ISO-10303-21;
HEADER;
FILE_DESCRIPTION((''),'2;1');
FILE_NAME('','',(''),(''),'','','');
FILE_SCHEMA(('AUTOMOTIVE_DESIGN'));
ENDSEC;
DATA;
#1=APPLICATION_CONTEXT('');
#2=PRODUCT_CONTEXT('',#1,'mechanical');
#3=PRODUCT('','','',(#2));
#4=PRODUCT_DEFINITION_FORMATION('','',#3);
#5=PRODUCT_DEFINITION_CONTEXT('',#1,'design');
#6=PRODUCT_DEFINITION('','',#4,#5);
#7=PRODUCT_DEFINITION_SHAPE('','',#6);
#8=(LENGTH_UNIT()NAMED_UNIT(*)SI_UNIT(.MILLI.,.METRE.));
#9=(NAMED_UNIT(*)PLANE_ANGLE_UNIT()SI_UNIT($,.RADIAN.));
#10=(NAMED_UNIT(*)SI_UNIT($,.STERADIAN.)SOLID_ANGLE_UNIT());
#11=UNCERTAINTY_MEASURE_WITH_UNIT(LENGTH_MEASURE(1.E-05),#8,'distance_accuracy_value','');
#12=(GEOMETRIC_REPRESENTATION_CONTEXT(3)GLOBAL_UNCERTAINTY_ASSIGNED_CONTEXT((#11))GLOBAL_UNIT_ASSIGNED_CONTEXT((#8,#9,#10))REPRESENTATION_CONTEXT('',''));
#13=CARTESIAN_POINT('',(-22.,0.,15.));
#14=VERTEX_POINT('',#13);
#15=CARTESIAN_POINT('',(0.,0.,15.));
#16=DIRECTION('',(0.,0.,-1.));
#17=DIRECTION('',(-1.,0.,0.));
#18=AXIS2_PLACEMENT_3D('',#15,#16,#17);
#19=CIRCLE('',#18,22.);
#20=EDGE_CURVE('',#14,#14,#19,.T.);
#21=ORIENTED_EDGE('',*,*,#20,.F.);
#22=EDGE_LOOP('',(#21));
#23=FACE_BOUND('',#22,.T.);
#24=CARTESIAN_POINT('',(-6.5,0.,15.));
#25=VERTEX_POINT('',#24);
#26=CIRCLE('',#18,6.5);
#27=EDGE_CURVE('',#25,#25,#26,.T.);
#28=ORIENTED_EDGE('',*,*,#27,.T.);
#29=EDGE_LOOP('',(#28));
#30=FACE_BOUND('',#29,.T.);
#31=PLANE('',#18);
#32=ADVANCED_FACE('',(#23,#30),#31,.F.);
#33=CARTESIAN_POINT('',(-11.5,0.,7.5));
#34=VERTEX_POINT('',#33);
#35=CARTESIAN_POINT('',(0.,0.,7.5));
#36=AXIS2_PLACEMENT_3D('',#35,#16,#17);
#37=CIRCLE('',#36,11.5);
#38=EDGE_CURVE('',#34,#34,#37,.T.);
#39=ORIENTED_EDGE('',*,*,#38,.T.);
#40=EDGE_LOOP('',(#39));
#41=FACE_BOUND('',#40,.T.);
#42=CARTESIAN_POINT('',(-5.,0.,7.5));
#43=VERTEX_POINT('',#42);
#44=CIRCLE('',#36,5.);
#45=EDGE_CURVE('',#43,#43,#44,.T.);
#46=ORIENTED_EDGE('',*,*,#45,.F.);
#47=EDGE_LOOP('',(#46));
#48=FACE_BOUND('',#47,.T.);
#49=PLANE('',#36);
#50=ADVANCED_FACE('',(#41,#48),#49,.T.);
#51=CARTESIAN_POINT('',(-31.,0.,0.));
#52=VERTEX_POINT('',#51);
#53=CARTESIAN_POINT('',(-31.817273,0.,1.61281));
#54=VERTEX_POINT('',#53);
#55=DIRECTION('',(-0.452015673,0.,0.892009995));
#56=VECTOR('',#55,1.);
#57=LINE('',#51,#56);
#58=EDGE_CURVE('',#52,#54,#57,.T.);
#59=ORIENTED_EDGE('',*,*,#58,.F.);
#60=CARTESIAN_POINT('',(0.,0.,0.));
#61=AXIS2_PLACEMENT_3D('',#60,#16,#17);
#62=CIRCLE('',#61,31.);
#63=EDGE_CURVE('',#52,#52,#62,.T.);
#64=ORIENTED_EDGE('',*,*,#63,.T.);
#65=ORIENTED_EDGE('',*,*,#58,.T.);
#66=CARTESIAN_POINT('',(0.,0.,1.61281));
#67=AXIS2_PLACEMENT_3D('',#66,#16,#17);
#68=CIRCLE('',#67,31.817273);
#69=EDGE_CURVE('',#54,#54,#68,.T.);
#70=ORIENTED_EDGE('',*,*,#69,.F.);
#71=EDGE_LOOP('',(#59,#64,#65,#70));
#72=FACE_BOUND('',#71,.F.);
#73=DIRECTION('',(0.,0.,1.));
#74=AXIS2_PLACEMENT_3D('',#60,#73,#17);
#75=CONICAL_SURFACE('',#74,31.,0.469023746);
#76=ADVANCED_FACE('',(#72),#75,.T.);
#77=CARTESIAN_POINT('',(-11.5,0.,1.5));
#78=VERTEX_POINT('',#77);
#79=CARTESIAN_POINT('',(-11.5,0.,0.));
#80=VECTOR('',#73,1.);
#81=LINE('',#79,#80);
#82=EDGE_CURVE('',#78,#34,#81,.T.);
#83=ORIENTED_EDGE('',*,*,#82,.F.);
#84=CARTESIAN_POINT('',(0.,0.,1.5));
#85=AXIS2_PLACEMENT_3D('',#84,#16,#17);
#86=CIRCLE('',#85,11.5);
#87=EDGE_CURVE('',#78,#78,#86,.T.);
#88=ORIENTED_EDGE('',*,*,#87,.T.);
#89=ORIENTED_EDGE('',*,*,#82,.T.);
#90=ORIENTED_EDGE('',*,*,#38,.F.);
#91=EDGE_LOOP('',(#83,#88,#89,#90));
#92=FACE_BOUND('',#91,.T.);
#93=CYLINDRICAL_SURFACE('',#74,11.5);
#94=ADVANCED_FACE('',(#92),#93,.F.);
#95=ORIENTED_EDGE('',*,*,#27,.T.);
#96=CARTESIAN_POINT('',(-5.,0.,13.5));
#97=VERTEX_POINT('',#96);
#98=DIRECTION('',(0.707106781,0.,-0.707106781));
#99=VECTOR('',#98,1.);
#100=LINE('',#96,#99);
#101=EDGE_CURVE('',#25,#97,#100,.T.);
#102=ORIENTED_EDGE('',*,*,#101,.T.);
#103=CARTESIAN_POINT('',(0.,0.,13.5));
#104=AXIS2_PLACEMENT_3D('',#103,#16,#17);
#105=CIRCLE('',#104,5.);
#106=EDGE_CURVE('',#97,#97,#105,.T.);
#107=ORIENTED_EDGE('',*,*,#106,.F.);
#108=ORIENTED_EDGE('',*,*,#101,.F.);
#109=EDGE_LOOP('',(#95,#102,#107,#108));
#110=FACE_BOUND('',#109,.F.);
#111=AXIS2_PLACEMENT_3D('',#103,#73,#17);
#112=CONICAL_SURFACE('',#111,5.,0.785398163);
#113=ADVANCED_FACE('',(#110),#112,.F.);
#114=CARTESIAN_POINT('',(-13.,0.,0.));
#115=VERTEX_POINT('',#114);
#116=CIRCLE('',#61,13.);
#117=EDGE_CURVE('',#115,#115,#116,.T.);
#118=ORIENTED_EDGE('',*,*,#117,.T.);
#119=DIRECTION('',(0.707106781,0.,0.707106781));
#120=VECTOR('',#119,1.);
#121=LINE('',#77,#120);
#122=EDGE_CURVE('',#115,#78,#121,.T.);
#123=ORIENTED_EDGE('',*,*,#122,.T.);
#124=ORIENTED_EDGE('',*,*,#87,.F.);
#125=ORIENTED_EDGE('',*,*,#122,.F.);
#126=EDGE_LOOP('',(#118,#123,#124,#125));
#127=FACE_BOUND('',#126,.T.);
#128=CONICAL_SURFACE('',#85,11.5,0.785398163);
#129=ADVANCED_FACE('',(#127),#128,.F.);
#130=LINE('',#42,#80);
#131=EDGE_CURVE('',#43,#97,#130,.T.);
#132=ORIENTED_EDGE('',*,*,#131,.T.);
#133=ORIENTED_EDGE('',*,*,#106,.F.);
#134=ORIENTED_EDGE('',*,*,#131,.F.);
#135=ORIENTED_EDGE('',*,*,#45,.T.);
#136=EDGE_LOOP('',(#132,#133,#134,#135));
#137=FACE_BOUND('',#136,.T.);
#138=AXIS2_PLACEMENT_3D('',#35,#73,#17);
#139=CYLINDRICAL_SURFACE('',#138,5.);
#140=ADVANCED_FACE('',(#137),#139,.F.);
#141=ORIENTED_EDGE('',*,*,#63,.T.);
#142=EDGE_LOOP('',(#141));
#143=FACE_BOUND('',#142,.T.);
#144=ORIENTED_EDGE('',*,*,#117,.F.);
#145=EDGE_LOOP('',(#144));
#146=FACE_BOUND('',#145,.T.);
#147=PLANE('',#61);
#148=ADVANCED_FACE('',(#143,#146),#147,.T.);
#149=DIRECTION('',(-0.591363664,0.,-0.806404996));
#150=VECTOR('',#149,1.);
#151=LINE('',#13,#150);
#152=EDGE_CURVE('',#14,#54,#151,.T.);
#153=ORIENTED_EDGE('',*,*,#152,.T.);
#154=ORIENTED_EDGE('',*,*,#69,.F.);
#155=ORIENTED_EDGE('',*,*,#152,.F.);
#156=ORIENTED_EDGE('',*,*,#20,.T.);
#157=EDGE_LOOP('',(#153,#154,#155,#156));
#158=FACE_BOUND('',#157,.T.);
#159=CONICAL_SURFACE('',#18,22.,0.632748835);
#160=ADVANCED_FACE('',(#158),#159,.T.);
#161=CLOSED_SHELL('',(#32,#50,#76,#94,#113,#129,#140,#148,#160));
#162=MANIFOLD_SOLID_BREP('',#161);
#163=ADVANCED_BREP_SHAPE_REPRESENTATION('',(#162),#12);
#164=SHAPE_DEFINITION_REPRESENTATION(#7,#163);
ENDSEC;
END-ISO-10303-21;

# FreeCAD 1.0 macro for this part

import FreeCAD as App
import Part
import Sketcher

V = App.Vector
Q = App.Units.Quantity


def edges_at(feature, points):
    """Names of the edges that pass closest to the given points."""
    edges = feature.Shape.Edges
    near = lambda p: min(range(len(edges)), key=lambda i: edges[i].distToShape(Part.Vertex(*p))[0])
    return sorted({f"Edge{near(p) + 1}" for p in points})


def add_polygon(sketch, points):
    """Adds a closed chain of lines whose ends are joined by coincident constraints."""
    first, n = sketch.GeometryCount, len(points)
    for a, b in zip(points, points[1:] + points[:1]):
        sketch.addGeometry(Part.LineSegment(App.Vector(*a, 0), App.Vector(*b, 0)), False)
    for i in range(n):
        sketch.addConstraint(Sketcher.Constraint("Coincident", first + i, 2, first + (i + 1) % n, 1))

doc = App.newDocument("Part")
params = doc.addObject("Spreadsheet::Sheet", "Params")
for row, (alias, value) in enumerate([
    ("sketch1_width", "17 mm"),
    ("sketch1_width2", "21.5 mm"),
    ("sketch1_width3", "6.5 mm"),
    ("sketch1_height", "7.5 mm"),
    ("revolution_angle", "360 deg"),
    ("chamfer_size", "2 mm"),
    ("chamfer2_size", "1.5 mm"),
    ("chamfer3_size", "1.5 mm"),
], start=1):
    params.set(f"A{row}", alias)
    params.set(f"B{row}", "=" + value)
    params.setAlias(f"B{row}", alias)

body = doc.addObject("PartDesign::Body", "Body")

# Sketch on XZ plane
sketch1 = body.newObject("Sketcher::SketchObject", "Sketch")
sketch1.AttachmentSupport = (doc.getObject("XZ_Plane"), [""])
sketch1.MapMode = "FlatFace"
add_polygon(sketch1, [(-33, 0), (-11.5, 0), (-11.5, 7.5), (-5, 7.5), (-5, 15), (-22, 15)])  # lines 0-5
sketch1.addConstraint(Sketcher.Constraint("Horizontal", 0))
sketch1.addConstraint(Sketcher.Constraint("Vertical", 1))
sketch1.addConstraint(Sketcher.Constraint("Horizontal", 2))
sketch1.addConstraint(Sketcher.Constraint("Vertical", 3))
sketch1.addConstraint(Sketcher.Constraint("Horizontal", 4))
sketch1.addConstraint(Sketcher.Constraint("PointOnObject", 0, 2, -1))
sketch1.addConstraint(Sketcher.Constraint("Equal", 1, 3))
sketch1.addConstraint(Sketcher.Constraint("DistanceX", 4, 2, 4, 1, Q("17 mm")))
sketch1.addConstraint(Sketcher.Constraint("DistanceX", 0, 1, 0, 2, Q("21.5 mm")))
sketch1.addConstraint(Sketcher.Constraint("DistanceX", 2, 1, 2, 2, Q("6.5 mm")))
sketch1.addConstraint(Sketcher.Constraint("DistanceY", 1, 1, 1, 2, Q("7.5 mm")))
sketch1.addConstraint(Sketcher.Constraint("DistanceX", 2, 2, -1, 1, Q("5 mm")))
sketch1.setExpression("Constraints[13]", "Params.sketch1_width")
sketch1.setExpression("Constraints[14]", "Params.sketch1_width2")
sketch1.setExpression("Constraints[15]", "Params.sketch1_width3")
sketch1.setExpression("Constraints[16]", "Params.sketch1_height")
revolution = body.newObject("PartDesign::Revolution", "Revolution")
revolution.Profile = sketch1
revolution.ReferenceAxis = (sketch1, ["V_Axis"])
revolution.setExpression("Angle", "Params.revolution_angle")
doc.recompute()

chamfer = body.newObject("PartDesign::Chamfer", "Chamfer")
chamfer.Base = (revolution, edges_at(revolution, [(33, 0, 0)]))
chamfer.setExpression("Size", "Params.chamfer_size")
doc.recompute()

chamfer2 = body.newObject("PartDesign::Chamfer", "Chamfer001")
chamfer2.Base = (chamfer, edges_at(chamfer, [(5, 0, 15)]))
chamfer2.setExpression("Size", "Params.chamfer2_size")
doc.recompute()

chamfer3 = body.newObject("PartDesign::Chamfer", "Chamfer002")
chamfer3.Base = (chamfer2, edges_at(chamfer2, [(11.5, 0, 0)]))
chamfer3.setExpression("Size", "Params.chamfer3_size")

doc.recompute()
